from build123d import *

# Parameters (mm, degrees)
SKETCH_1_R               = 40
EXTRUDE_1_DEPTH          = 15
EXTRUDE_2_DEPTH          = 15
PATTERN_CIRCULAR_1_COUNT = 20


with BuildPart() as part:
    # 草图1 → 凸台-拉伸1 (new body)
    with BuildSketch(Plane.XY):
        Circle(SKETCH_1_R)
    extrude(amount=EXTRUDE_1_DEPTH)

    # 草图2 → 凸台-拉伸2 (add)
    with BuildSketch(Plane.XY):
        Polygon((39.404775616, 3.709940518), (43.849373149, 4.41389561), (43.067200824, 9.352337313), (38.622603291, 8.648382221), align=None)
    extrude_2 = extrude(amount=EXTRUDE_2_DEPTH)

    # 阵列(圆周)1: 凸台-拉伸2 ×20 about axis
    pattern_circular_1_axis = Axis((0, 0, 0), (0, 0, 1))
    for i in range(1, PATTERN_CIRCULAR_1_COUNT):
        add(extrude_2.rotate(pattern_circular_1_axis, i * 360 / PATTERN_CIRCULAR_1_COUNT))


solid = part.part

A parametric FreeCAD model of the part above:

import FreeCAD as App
import Part
import Sketcher
from FreeCAD import Vector
Q = App.Units.Quantity


def add_polygon(sketch, points):
    """Adds a closed chain of lines whose ends are joined by coincident constraints."""
    first, n = sketch.GeometryCount, len(points)
    for a, b in zip(points, points[1:] + points[:1]):
        sketch.addGeometry(Part.LineSegment(App.Vector(*a, 0), App.Vector(*b, 0)), False)
    for i in range(n):
        sketch.addConstraint(Sketcher.Constraint("Coincident", first + i, 2, first + (i + 1) % n, 1))

doc = App.newDocument("Part")
body = doc.addObject("PartDesign::Body", "Body")

sketch1 = body.newObject("Sketcher::SketchObject", "Sketch")
sketch1.AttachmentSupport = (doc.getObject("XY_Plane"), [""])
sketch1.MapMode = "FlatFace"
sketch1.addGeometry(Part.Circle(Vector(0, 0, 0), Vector(0, 0, 1), 40), False)
sketch1.addConstraint([
    Sketcher.Constraint("Coincident", 0, 3, -1, 1),
    Sketcher.Constraint("Diameter", 0, Q("80 mm")),
])
pad1 = body.newObject("PartDesign::Pad", "Pad")
pad1.Profile = sketch1
pad1.Length = 15

sketch2 = body.newObject("Sketcher::SketchObject", "Sketch001")
sketch2.AttachmentSupport = (doc.getObject("XY_Plane"), [""])
sketch2.MapMode = "FlatFace"
add_polygon(sketch2, [(39.4, 3.7), (43.8, 4.4), (43.1, 9.4), (38.6, 8.6)])
sketch2.addConstraint([
    Sketcher.Constraint("Perpendicular", 0, 1),
    Sketcher.Constraint("Perpendicular", 1, 2),
    Sketcher.Constraint("Perpendicular", 2, 3),
    Sketcher.Constraint("Angle", 0, Q("9 deg")),
    Sketcher.Constraint("Distance", 1, Q("5 mm")),
    Sketcher.Constraint("Distance", 0, Q("4.5 mm")),
    Sketcher.Constraint("DistanceX", -1, 1, 1, 2, Q("43.067201 mm")),
    Sketcher.Constraint("DistanceY", -1, 1, 3, 2, Q("3.709941 mm")),
])
pad2 = body.newObject("PartDesign::Pad", "Pad001")
pad2.Profile = sketch2
pad2.Length = 15
doc.recompute()

polarpattern = body.newObject("PartDesign::PolarPattern", "PolarPattern")
polarpattern.Originals = [pad2]
polarpattern.Axis = (doc.getObject("Z_Axis"), [""])
polarpattern.Angle = 360
polarpattern.Occurrences = 20
body.Tip = polarpattern

doc.recompute()
